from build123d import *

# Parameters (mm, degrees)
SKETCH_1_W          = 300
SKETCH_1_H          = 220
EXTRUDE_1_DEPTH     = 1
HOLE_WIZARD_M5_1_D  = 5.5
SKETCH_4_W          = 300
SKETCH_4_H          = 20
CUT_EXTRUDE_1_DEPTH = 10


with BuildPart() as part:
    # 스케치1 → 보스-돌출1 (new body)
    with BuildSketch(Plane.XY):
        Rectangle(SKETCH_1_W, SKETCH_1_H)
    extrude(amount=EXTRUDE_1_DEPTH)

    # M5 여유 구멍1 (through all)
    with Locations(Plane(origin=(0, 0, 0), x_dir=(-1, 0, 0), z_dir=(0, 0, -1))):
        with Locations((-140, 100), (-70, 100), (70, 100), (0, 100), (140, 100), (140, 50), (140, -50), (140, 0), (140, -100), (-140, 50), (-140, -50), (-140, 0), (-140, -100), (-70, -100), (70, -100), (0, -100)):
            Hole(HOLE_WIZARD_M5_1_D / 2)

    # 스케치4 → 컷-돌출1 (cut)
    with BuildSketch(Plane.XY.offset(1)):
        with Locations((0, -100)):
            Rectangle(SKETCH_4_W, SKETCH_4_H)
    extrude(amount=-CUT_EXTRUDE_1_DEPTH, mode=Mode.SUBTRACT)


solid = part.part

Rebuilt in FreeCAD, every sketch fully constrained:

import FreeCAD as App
import Part
import Sketcher
from FreeCAD import Vector
Q = App.Units.Quantity


def add_polygon(sketch, points):
    """Adds a closed chain of lines whose ends are joined by coincident constraints."""
    first, n = sketch.GeometryCount, len(points)
    for a, b in zip(points, points[1:] + points[:1]):
        sketch.addGeometry(Part.LineSegment(App.Vector(*a, 0), App.Vector(*b, 0)), False)
    for i in range(n):
        sketch.addConstraint(Sketcher.Constraint("Coincident", first + i, 2, first + (i + 1) % n, 1))

doc = App.newDocument("Part")
body = doc.addObject("PartDesign::Body", "Body")

sketch1 = body.newObject("Sketcher::SketchObject", "Sketch")
sketch1.AttachmentSupport = (doc.getObject("XY_Plane"), [""])
sketch1.MapMode = "FlatFace"
add_polygon(sketch1, [(-150, 110), (-150, -110), (150, -110), (150, 110)])
sketch1.addConstraint([
    Sketcher.Constraint("Vertical", 0),
    Sketcher.Constraint("Horizontal", 1),
    Sketcher.Constraint("Vertical", 2),
    Sketcher.Constraint("Horizontal", 3),
    Sketcher.Constraint("Symmetric", 0, 2, 2, 2, -1, 1),
    Sketcher.Constraint("DistanceX", 1, 1, 1, 2, Q("300 mm")),
    Sketcher.Constraint("DistanceY", 0, 2, 0, 1, Q("220 mm")),
])
pad1 = body.newObject("PartDesign::Pad", "Pad")
pad1.Profile = sketch1
pad1.Length = 1

sketch2 = body.newObject("Sketcher::SketchObject", "Sketch001")
sketch2.AttachmentSupport = (doc.getObject("XY_Plane"), [""])
sketch2.MapMode = "FlatFace"
sketch2.addGeometry([
    Part.Circle(Vector(140, 100, 0), Vector(0, 0, 1), 2.8),
    Part.Circle(Vector(70, 100, 0), Vector(0, 0, 1), 2.8),
    Part.Circle(Vector(-70, 100, 0), Vector(0, 0, 1), 2.8),
    Part.Circle(Vector(0, 100, 0), Vector(0, 0, 1), 2.8),
    Part.Circle(Vector(-140, 100, 0), Vector(0, 0, 1), 2.8),
    Part.Circle(Vector(-140, 50, 0), Vector(0, 0, 1), 2.8),
    Part.Circle(Vector(-140, -50, 0), Vector(0, 0, 1), 2.8),
    Part.Circle(Vector(-140, 0, 0), Vector(0, 0, 1), 2.8),
    Part.Circle(Vector(-140, -100, 0), Vector(0, 0, 1), 2.8),
    Part.Circle(Vector(140, 50, 0), Vector(0, 0, 1), 2.8),
    Part.Circle(Vector(140, -50, 0), Vector(0, 0, 1), 2.8),
    Part.Circle(Vector(140, 0, 0), Vector(0, 0, 1), 2.8),
    Part.Circle(Vector(140, -100, 0), Vector(0, 0, 1), 2.8),
    Part.Circle(Vector(70, -100, 0), Vector(0, 0, 1), 2.8),
    Part.Circle(Vector(-70, -100, 0), Vector(0, 0, 1), 2.8),
    Part.Circle(Vector(0, -100, 0), Vector(0, 0, 1), 2.8),
], False)
sketch2.addConstraint([
    Sketcher.Constraint("Equal", 0, 1),
    Sketcher.Constraint("Equal", 1, 2),
    Sketcher.Constraint("Equal", 2, 3),
    Sketcher.Constraint("Equal", 3, 4),
    Sketcher.Constraint("Equal", 4, 5),
    Sketcher.Constraint("Equal", 5, 6),
    Sketcher.Constraint("Equal", 6, 7),
    Sketcher.Constraint("Equal", 7, 8),
    Sketcher.Constraint("Equal", 8, 9),
    Sketcher.Constraint("Equal", 9, 10),
    Sketcher.Constraint("Equal", 10, 11),
    Sketcher.Constraint("Equal", 11, 12),
    Sketcher.Constraint("Equal", 12, 13),
    Sketcher.Constraint("Equal", 13, 14),
    Sketcher.Constraint("Equal", 14, 15),
    Sketcher.Constraint("Symmetric", 0, 3, 8, 3, -1, 1),
    Sketcher.Constraint("Symmetric", 6, 3, 9, 3, -1, 1),
    Sketcher.Constraint("Symmetric", 5, 3, 10, 3, -1, 1),
    Sketcher.Constraint("Symmetric", 7, 3, 11, 3, -1, 1),
    Sketcher.Constraint("Symmetric", 4, 3, 12, 3, -1, 1),
    Sketcher.Constraint("Symmetric", 2, 3, 13, 3, -1, 1),
    Sketcher.Constraint("Symmetric", 1, 3, 14, 3, -1, 1),
    Sketcher.Constraint("Symmetric", 3, 3, 15, 3, -1, 1),
    Sketcher.Constraint("Symmetric", 1, 3, 2, 3, -2),
    Sketcher.Constraint("Symmetric", 0, 3, 4, 3, -2),
    Sketcher.Constraint("Symmetric", 5, 3, 9, 3, -2),
    Sketcher.Constraint("PointOnObject", 3, 3, -2),
    Sketcher.Constraint("PointOnObject", 7, 3, -1),
    Sketcher.Constraint("Horizontal", 0, 3, 1, 3),
    Sketcher.Constraint("Horizontal", 2, 3, 3, 3),
    Sketcher.Constraint("Vertical", 4, 3, 5, 3),
    Sketcher.Constraint("Vertical", 6, 3, 7, 3),
    Sketcher.Constraint("Diameter", 0, Q("5.5 mm")),
    Sketcher.Constraint("DistanceX", -1, 1, 0, 3, Q("140 mm")),
    Sketcher.Constraint("DistanceY", -1, 1, 0, 3, Q("100 mm")),
    Sketcher.Constraint("DistanceX", -1, 1, 1, 3, Q("70 mm")),
    Sketcher.Constraint("DistanceY", -1, 1, 5, 3, Q("50 mm")),
])
doc.recompute()
hole = body.newObject("PartDesign::Hole", "Hole")
hole.Profile = sketch2
hole.ThreadType = "None"
hole.Diameter = 5.5
hole.DepthType = "ThroughAll"
hole.Reversed = True

sketch3 = body.newObject("Sketcher::SketchObject", "Sketch002")
sketch3.AttachmentSupport = (doc.getObject("XY_Plane"), [""])
sketch3.MapMode = "FlatFace"
sketch3.AttachmentOffset = App.Placement(Vector(0, 0, 1), App.Rotation())
add_polygon(sketch3, [(-150, -90), (-150, -110), (150, -110), (150, -90)])
sketch3.addConstraint([
    Sketcher.Constraint("Vertical", 0),
    Sketcher.Constraint("Horizontal", 1),
    Sketcher.Constraint("Vertical", 2),
    Sketcher.Constraint("Horizontal", 3),
    Sketcher.Constraint("DistanceX", 1, 1, 1, 2, Q("300 mm")),
    Sketcher.Constraint("DistanceY", 0, 2, 0, 1, Q("20 mm")),
    Sketcher.Constraint("DistanceX", 0, 2, -1, 1, Q("150 mm")),
    Sketcher.Constraint("DistanceY", 0, 2, -1, 1, Q("110 mm")),
])
pocket1 = body.newObject("PartDesign::Pocket", "Pocket")
pocket1.Profile = sketch3
pocket1.Length = 10

doc.recompute()
